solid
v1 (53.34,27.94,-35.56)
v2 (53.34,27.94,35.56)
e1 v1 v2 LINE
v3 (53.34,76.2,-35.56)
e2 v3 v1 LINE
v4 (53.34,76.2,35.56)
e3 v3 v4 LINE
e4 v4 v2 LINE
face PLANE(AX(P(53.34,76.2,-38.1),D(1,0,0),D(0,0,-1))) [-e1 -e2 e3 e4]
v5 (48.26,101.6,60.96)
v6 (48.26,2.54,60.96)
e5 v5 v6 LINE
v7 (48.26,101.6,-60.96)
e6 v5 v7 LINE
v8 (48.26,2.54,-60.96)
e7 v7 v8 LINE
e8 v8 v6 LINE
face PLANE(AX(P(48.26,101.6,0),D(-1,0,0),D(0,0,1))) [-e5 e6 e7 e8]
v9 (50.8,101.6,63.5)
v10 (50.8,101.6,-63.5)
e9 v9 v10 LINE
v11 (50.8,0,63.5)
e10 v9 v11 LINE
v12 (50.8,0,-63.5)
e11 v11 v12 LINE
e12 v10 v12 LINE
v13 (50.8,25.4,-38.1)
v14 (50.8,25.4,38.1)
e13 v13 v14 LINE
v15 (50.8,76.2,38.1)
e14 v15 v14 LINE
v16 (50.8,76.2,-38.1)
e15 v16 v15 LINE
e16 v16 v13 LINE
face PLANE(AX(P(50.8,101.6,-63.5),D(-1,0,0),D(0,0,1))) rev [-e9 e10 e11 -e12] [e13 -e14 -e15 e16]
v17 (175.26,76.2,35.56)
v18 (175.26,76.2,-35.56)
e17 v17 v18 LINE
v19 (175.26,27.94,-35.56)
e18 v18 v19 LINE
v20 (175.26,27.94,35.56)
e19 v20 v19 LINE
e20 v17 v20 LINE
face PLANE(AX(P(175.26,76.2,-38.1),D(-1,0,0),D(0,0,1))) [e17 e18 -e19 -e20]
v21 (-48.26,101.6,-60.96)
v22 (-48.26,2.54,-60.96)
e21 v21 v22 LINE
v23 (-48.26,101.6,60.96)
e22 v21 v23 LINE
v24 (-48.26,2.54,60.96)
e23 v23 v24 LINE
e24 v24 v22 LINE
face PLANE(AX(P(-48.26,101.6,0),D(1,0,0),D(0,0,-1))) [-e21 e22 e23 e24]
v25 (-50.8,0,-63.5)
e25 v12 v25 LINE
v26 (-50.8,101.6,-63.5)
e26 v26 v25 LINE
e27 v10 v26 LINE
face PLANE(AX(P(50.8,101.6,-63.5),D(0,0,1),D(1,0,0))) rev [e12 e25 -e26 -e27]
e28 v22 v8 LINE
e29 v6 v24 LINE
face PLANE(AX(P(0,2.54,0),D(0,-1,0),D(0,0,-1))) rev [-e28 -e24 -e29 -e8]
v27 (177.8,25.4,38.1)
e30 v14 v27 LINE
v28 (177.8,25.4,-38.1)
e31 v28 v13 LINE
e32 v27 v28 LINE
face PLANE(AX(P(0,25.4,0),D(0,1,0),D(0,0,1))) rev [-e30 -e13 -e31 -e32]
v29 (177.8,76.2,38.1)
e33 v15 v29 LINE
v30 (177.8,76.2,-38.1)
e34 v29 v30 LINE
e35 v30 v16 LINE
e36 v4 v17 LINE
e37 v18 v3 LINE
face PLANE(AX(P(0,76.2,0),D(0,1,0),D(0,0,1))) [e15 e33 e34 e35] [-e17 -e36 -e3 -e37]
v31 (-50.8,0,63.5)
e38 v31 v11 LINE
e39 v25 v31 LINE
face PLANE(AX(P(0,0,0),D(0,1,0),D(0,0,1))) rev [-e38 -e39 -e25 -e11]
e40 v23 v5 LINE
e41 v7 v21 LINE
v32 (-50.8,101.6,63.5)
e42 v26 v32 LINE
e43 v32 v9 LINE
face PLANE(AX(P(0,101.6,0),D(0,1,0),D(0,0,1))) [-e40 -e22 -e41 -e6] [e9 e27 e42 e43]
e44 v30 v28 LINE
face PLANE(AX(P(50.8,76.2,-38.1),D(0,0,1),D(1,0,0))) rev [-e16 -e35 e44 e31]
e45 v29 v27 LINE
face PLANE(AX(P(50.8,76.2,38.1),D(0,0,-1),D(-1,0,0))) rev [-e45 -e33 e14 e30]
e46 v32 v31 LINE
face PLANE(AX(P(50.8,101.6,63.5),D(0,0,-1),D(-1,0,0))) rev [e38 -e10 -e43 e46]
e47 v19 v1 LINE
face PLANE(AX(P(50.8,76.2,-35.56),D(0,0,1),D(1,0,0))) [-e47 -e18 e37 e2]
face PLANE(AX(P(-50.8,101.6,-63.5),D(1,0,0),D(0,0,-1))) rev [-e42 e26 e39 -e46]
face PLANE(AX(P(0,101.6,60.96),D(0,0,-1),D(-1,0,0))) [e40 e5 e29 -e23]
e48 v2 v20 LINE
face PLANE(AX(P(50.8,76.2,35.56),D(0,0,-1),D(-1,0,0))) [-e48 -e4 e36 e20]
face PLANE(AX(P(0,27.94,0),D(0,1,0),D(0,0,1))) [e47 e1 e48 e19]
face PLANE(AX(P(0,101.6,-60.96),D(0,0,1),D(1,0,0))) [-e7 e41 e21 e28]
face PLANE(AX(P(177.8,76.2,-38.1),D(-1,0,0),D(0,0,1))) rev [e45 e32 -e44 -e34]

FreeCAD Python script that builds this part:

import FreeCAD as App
import Part
import Sketcher
from FreeCAD import Vector
Q = App.Units.Quantity

doc = App.newDocument("Part")
body = doc.addObject("PartDesign::Body", "Body")

# Sketch on XZ plane
sketch1 = doc.addObject("Sketcher::SketchObject", "Sketch")
body.addObject(sketch1)
sketch1.AttachmentSupport = (doc.XZ_Plane, [""])
sketch1.MapMode = "FlatFace"
sketch1.addGeometry(Part.LineSegment(Vector(-51, -64, 0), Vector(-51, 64, 0)), False)
sketch1.addGeometry(Part.LineSegment(Vector(-51, 64, 0), Vector(51, 64, 0)), False)
sketch1.addGeometry(Part.LineSegment(Vector(51, 64, 0), Vector(51, -64, 0)), False)
sketch1.addGeometry(Part.LineSegment(Vector(51, -64, 0), Vector(-51, -64, 0)), False)
sketch1.addGeometry(Part.LineSegment(Vector(48, 61, 0), Vector(-48, 61, 0)), False)
sketch1.addGeometry(Part.LineSegment(Vector(-48, 61, 0), Vector(-48, -61, 0)), False)
sketch1.addGeometry(Part.LineSegment(Vector(-48, -61, 0), Vector(48, -61, 0)), False)
sketch1.addGeometry(Part.LineSegment(Vector(48, -61, 0), Vector(48, 61, 0)), False)
sketch1.addConstraint(Sketcher.Constraint("Coincident", 0, 2, 1, 1))
sketch1.addConstraint(Sketcher.Constraint("Coincident", 1, 2, 2, 1))
sketch1.addConstraint(Sketcher.Constraint("Coincident", 2, 2, 3, 1))
sketch1.addConstraint(Sketcher.Constraint("Coincident", 3, 2, 0, 1))
sketch1.addConstraint(Sketcher.Constraint("Coincident", 4, 2, 5, 1))
sketch1.addConstraint(Sketcher.Constraint("Coincident", 5, 2, 6, 1))
sketch1.addConstraint(Sketcher.Constraint("Coincident", 6, 2, 7, 1))
sketch1.addConstraint(Sketcher.Constraint("Coincident", 7, 2, 4, 1))
sketch1.addConstraint(Sketcher.Constraint("Vertical", 0))
sketch1.addConstraint(Sketcher.Constraint("Horizontal", 1))
sketch1.addConstraint(Sketcher.Constraint("Vertical", 2))
sketch1.addConstraint(Sketcher.Constraint("Horizontal", 3))
sketch1.addConstraint(Sketcher.Constraint("Horizontal", 4))
sketch1.addConstraint(Sketcher.Constraint("Vertical", 5))
sketch1.addConstraint(Sketcher.Constraint("Horizontal", 6))
sketch1.addConstraint(Sketcher.Constraint("Vertical", 7))
sketch1.addConstraint(Sketcher.Constraint("Symmetric", 0, 2, 2, 2, -1, 1))
sketch1.addConstraint(Sketcher.Constraint("Symmetric", 4, 2, 6, 2, -1, 1))
sketch1.addConstraint(Sketcher.Constraint("DistanceX", 1, 1, 1, 2, Q("4 in")))
sketch1.addConstraint(Sketcher.Constraint("DistanceY", 0, 1, 0, 2, Q("5 in")))
sketch1.addConstraint(Sketcher.Constraint("DistanceX", 4, 2, 4, 1, Q("3.8 in")))
sketch1.addConstraint(Sketcher.Constraint("DistanceY", 5, 2, 5, 1, Q("4.8 in")))
pad1 = doc.addObject("PartDesign::Pad", "Pad")
body.addObject(pad1)
pad1.Profile = sketch1
pad1.Length = Q("4 in")
pad1.Reversed = True

# Sketch on XZ plane
sketch2 = doc.addObject("Sketcher::SketchObject", "Sketch001")
body.addObject(sketch2)
sketch2.AttachmentSupport = (doc.XZ_Plane, [""])
sketch2.MapMode = "FlatFace"
sketch2.addGeometry(Part.LineSegment(Vector(-51, -64, 0), Vector(-51, 64, 0)), False)
sketch2.addGeometry(Part.LineSegment(Vector(-51, 64, 0), Vector(51, 64, 0)), False)
sketch2.addGeometry(Part.LineSegment(Vector(51, 64, 0), Vector(51, -64, 0)), False)
sketch2.addGeometry(Part.LineSegment(Vector(51, -64, 0), Vector(-51, -64, 0)), False)
sketch2.addConstraint(Sketcher.Constraint("Coincident", 0, 2, 1, 1))
sketch2.addConstraint(Sketcher.Constraint("Coincident", 1, 2, 2, 1))
sketch2.addConstraint(Sketcher.Constraint("Coincident", 2, 2, 3, 1))
sketch2.addConstraint(Sketcher.Constraint("Coincident", 3, 2, 0, 1))
sketch2.addConstraint(Sketcher.Constraint("Vertical", 0))
sketch2.addConstraint(Sketcher.Constraint("Horizontal", 1))
sketch2.addConstraint(Sketcher.Constraint("Vertical", 2))
sketch2.addConstraint(Sketcher.Constraint("Horizontal", 3))
sketch2.addConstraint(Sketcher.Constraint("Symmetric", 0, 2, 2, 2, -1, 1))
sketch2.addConstraint(Sketcher.Constraint("DistanceX", 1, 1, 1, 2, Q("4 in")))
sketch2.addConstraint(Sketcher.Constraint("DistanceY", 0, 1, 0, 2, Q("5 in")))
pad2 = doc.addObject("PartDesign::Pad", "Pad001")
body.addObject(pad2)
pad2.Profile = sketch2
pad2.Length = Q("0.1 in")
pad2.Reversed = True

# Sketch on XZ plane
sketch3 = doc.addObject("Sketcher::SketchObject", "Sketch002")
body.addObject(sketch3)
sketch3.AttachmentSupport = (doc.XZ_Plane, [""])
sketch3.MapMode = "FlatFace"
sketch3.AttachmentOffset = App.Placement(Vector(0, 0, -1 * 25.4), App.Rotation())
sketch3.addGeometry(Part.LineSegment(Vector(51, -38, 0), Vector(51, 38, 0)), False)
sketch3.addGeometry(Part.LineSegment(Vector(51, 38, 0), Vector(178, 38, 0)), False)
sketch3.addGeometry(Part.LineSegment(Vector(178, 38, 0), Vector(178, -38, 0)), False)
sketch3.addGeometry(Part.LineSegment(Vector(178, -38, 0), Vector(51, -38, 0)), False)
sketch3.addGeometry(Part.LineSegment(Vector(175, 36, 0), Vector(53, 36, 0)), False)
sketch3.addGeometry(Part.LineSegment(Vector(53, 36, 0), Vector(53, -36, 0)), False)
sketch3.addGeometry(Part.LineSegment(Vector(53, -36, 0), Vector(175, -36, 0)), False)
sketch3.addGeometry(Part.LineSegment(Vector(175, -36, 0), Vector(175, 36, 0)), False)
sketch3.addConstraint(Sketcher.Constraint("Coincident", 0, 2, 1, 1))
sketch3.addConstraint(Sketcher.Constraint("Coincident", 1, 2, 2, 1))
sketch3.addConstraint(Sketcher.Constraint("Coincident", 2, 2, 3, 1))
sketch3.addConstraint(Sketcher.Constraint("Coincident", 3, 2, 0, 1))
sketch3.addConstraint(Sketcher.Constraint("Coincident", 4, 2, 5, 1))
sketch3.addConstraint(Sketcher.Constraint("Coincident", 5, 2, 6, 1))
sketch3.addConstraint(Sketcher.Constraint("Coincident", 6, 2, 7, 1))
sketch3.addConstraint(Sketcher.Constraint("Coincident", 7, 2, 4, 1))
sketch3.addConstraint(Sketcher.Constraint("Vertical", 0))
sketch3.addConstraint(Sketcher.Constraint("Horizontal", 1))
sketch3.addConstraint(Sketcher.Constraint("Vertical", 2))
sketch3.addConstraint(Sketcher.Constraint("Horizontal", 3))
sketch3.addConstraint(Sketcher.Constraint("Horizontal", 4))
sketch3.addConstraint(Sketcher.Constraint("Vertical", 5))
sketch3.addConstraint(Sketcher.Constraint("Horizontal", 6))
sketch3.addConstraint(Sketcher.Constraint("Vertical", 7))
sketch3.addConstraint(Sketcher.Constraint("DistanceX", 1, 1, 1, 2, Q("5 in")))
sketch3.addConstraint(Sketcher.Constraint("DistanceY", 0, 1, 0, 2, Q("3 in")))
sketch3.addConstraint(Sketcher.Constraint("DistanceX", 4, 2, 4, 1, Q("4.8 in")))
sketch3.addConstraint(Sketcher.Constraint("DistanceY", 5, 2, 5, 1, Q("2.8 in")))
sketch3.addConstraint(Sketcher.Constraint("DistanceX", -1, 1, 0, 2, Q("2 in")))
sketch3.addConstraint(Sketcher.Constraint("DistanceY", -1, 1, 0, 2, Q("1.5 in")))
sketch3.addConstraint(Sketcher.Constraint("DistanceX", -1, 1, 4, 2, Q("2.1 in")))
sketch3.addConstraint(Sketcher.Constraint("DistanceY", -1, 1, 4, 2, Q("1.4 in")))
pad3 = doc.addObject("PartDesign::Pad", "Pad002")
body.addObject(pad3)
pad3.Profile = sketch3
pad3.Length = Q("2 in")
pad3.Reversed = True

# Sketch on XZ plane
sketch4 = doc.addObject("Sketcher::SketchObject", "Sketch003")
body.addObject(sketch4)
sketch4.AttachmentSupport = (doc.XZ_Plane, [""])
sketch4.MapMode = "FlatFace"
sketch4.AttachmentOffset = App.Placement(Vector(0, 0, -1 * 25.4), App.Rotation())
sketch4.addGeometry(Part.LineSegment(Vector(51, -38, 0), Vector(51, 38, 0)), False)
sketch4.addGeometry(Part.LineSegment(Vector(51, 38, 0), Vector(178, 38, 0)), False)
sketch4.addGeometry(Part.LineSegment(Vector(178, 38, 0), Vector(178, -38, 0)), False)
sketch4.addGeometry(Part.LineSegment(Vector(178, -38, 0), Vector(51, -38, 0)), False)
sketch4.addConstraint(Sketcher.Constraint("Coincident", 0, 2, 1, 1))
sketch4.addConstraint(Sketcher.Constraint("Coincident", 1, 2, 2, 1))
sketch4.addConstraint(Sketcher.Constraint("Coincident", 2, 2, 3, 1))
sketch4.addConstraint(Sketcher.Constraint("Coincident", 3, 2, 0, 1))
sketch4.addConstraint(Sketcher.Constraint("Vertical", 0))
sketch4.addConstraint(Sketcher.Constraint("Horizontal", 1))
sketch4.addConstraint(Sketcher.Constraint("Vertical", 2))
sketch4.addConstraint(Sketcher.Constraint("Horizontal", 3))
sketch4.addConstraint(Sketcher.Constraint("DistanceX", 1, 1, 1, 2, Q("5 in")))
sketch4.addConstraint(Sketcher.Constraint("DistanceY", 0, 1, 0, 2, Q("3 in")))
sketch4.addConstraint(Sketcher.Constraint("DistanceX", -1, 1, 0, 2, Q("2 in")))
sketch4.addConstraint(Sketcher.Constraint("DistanceY", -1, 1, 0, 2, Q("1.5 in")))
pad4 = doc.addObject("PartDesign::Pad", "Pad003")
body.addObject(pad4)
pad4.Profile = sketch4
pad4.Length = Q("0.1 in")
pad4.Reversed = True

doc.recompute()
